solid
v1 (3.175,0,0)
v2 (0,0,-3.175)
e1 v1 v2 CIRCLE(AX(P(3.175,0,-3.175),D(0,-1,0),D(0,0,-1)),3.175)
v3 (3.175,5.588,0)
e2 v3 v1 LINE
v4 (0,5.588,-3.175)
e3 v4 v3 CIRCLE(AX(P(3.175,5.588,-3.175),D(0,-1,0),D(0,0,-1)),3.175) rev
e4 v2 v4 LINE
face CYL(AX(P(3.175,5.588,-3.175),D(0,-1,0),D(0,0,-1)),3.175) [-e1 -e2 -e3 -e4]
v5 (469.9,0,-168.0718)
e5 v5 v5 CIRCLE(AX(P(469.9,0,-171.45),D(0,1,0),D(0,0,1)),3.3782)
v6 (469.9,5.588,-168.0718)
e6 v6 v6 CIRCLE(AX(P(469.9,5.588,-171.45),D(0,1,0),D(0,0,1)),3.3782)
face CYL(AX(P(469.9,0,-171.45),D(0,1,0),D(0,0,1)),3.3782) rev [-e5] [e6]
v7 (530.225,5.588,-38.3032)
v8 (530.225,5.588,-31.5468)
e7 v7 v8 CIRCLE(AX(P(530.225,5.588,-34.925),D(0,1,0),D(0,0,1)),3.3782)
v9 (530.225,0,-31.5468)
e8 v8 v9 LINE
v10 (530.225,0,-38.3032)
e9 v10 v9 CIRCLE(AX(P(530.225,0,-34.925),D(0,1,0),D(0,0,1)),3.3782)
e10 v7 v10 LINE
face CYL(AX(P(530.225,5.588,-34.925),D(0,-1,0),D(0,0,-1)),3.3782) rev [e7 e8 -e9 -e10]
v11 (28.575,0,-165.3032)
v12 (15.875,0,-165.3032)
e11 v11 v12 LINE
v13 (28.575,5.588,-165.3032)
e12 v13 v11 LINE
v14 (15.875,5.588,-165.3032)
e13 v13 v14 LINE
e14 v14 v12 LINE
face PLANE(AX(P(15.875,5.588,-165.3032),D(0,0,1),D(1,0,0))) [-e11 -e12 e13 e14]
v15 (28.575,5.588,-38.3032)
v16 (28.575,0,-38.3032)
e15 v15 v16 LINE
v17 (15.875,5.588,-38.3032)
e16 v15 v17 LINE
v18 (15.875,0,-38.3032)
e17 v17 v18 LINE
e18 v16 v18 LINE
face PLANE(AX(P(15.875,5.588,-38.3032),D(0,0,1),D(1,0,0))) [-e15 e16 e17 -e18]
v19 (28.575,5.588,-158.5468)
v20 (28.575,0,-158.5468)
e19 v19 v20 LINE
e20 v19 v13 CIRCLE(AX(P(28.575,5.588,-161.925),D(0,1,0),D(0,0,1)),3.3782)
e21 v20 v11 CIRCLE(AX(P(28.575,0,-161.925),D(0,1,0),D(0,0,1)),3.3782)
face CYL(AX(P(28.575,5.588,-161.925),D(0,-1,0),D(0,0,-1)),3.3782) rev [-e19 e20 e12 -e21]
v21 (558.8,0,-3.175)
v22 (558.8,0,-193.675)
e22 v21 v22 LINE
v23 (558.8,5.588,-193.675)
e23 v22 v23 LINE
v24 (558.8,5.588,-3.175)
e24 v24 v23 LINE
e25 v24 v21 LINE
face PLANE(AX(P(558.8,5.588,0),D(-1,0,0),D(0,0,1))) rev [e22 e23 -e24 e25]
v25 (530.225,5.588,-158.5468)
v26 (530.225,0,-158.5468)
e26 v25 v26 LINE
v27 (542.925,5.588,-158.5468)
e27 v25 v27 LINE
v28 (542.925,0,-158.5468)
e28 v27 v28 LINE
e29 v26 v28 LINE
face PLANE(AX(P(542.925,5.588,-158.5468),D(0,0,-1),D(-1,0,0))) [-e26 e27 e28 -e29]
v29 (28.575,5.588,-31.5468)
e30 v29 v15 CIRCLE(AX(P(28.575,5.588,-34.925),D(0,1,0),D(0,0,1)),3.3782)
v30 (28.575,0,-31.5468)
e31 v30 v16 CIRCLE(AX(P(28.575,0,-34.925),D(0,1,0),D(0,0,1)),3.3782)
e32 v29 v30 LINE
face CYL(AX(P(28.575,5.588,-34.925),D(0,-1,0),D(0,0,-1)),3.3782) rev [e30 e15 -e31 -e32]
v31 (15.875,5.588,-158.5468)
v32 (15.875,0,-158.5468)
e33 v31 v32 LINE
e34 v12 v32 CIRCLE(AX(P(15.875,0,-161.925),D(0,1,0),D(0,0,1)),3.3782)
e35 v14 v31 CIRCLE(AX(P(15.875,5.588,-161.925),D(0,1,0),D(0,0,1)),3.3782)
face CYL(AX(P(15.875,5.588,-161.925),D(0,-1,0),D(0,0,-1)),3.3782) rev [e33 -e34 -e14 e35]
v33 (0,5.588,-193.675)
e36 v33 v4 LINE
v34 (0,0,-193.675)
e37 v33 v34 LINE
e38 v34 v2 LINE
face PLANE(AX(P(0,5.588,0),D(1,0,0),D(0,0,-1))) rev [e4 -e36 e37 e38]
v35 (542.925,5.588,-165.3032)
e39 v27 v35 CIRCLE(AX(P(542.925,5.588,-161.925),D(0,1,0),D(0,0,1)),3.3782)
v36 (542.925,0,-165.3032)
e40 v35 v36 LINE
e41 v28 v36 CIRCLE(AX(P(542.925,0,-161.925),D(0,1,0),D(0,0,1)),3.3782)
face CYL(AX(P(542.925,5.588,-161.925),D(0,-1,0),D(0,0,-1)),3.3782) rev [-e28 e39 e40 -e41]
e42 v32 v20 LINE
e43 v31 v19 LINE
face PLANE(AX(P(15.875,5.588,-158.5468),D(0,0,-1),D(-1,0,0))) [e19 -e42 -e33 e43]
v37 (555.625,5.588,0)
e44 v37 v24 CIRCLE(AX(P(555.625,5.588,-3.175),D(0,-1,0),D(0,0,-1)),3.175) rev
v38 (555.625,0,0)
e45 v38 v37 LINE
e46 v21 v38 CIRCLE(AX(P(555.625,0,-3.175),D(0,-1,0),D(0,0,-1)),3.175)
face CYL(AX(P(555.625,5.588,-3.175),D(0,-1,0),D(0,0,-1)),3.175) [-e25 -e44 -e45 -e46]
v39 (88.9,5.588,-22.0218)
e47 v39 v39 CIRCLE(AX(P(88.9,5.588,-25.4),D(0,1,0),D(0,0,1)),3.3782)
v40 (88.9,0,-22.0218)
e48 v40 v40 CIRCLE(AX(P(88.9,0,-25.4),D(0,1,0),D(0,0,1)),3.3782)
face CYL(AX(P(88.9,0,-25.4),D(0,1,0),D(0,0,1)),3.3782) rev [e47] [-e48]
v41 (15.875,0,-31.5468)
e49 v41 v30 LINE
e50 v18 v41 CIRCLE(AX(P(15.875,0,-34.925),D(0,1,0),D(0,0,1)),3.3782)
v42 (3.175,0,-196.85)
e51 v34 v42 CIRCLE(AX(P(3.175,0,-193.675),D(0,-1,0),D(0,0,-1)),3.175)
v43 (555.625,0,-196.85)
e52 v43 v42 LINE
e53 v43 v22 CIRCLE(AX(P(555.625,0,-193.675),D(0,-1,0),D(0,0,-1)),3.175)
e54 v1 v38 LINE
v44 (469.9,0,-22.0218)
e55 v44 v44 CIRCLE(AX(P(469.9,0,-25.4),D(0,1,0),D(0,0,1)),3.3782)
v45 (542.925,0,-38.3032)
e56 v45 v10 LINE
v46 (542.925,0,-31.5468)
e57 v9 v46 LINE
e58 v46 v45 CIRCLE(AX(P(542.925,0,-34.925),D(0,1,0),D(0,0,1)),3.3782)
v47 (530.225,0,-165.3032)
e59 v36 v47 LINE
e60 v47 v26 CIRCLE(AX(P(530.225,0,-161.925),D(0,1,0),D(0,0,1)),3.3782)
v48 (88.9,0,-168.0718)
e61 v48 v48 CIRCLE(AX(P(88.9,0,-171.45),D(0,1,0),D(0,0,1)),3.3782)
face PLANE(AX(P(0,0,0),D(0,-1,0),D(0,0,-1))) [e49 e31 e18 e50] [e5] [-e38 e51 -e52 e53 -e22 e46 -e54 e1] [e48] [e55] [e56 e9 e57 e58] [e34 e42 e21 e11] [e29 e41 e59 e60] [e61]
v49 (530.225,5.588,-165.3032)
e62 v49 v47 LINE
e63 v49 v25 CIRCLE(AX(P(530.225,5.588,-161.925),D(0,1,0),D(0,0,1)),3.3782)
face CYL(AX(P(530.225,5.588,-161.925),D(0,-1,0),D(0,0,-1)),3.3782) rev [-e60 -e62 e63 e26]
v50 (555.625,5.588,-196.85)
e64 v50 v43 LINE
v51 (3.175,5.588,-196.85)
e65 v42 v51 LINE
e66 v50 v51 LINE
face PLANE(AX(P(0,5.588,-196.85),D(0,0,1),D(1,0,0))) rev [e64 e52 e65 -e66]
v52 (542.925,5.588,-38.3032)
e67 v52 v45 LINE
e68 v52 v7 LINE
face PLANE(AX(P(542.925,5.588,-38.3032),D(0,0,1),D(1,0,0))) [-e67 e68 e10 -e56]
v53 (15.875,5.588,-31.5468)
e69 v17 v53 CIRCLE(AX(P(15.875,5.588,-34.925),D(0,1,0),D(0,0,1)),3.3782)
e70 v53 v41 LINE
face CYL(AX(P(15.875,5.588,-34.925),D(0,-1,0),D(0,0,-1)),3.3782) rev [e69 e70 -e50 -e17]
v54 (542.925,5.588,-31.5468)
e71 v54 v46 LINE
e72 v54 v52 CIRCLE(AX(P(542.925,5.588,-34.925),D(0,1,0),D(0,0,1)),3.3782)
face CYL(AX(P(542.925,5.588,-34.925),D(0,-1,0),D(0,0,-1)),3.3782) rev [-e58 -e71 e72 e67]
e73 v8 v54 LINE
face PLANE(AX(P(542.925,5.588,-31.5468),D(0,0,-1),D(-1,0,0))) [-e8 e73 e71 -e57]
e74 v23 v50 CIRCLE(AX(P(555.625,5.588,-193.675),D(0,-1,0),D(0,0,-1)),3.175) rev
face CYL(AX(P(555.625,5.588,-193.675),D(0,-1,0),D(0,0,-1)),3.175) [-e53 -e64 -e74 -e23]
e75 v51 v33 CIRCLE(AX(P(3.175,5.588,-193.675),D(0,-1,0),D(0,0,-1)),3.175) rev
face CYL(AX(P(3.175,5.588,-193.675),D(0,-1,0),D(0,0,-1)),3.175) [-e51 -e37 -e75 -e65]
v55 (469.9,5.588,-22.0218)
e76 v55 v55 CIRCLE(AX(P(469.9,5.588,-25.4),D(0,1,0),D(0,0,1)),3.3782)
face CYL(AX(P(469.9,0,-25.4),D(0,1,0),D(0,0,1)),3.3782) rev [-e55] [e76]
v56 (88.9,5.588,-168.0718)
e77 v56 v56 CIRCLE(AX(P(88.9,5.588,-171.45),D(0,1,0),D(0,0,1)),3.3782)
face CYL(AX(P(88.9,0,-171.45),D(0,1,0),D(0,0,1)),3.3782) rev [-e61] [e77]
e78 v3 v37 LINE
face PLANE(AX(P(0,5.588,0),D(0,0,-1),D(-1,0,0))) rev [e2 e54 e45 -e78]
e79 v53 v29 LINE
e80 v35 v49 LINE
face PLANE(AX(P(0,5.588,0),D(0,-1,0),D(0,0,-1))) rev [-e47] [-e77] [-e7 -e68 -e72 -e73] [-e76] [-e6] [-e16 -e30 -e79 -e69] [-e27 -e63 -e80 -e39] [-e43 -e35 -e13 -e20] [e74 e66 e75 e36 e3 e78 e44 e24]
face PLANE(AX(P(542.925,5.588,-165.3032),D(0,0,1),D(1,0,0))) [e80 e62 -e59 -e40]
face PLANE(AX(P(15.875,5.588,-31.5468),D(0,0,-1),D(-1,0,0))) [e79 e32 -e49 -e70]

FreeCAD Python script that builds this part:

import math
import FreeCAD as App
import Part
import Sketcher
Q = App.Units.Quantity


def edges_at(feature, points):
    """Names of the edges that pass closest to the given points."""
    edges = feature.Shape.Edges
    near = lambda p: min(range(len(edges)), key=lambda i: edges[i].distToShape(Part.Vertex(*p))[0])
    return sorted({f"Edge{near(p) + 1}" for p in points})


def add_polygon(sketch, points):
    """Adds a closed chain of lines whose ends are joined by coincident constraints."""
    first, n = sketch.GeometryCount, len(points)
    for a, b in zip(points, points[1:] + points[:1]):
        sketch.addGeometry(Part.LineSegment(App.Vector(*a, 0), App.Vector(*b, 0)), False)
    for i in range(n):
        sketch.addConstraint(Sketcher.Constraint("Coincident", first + i, 2, first + (i + 1) % n, 1))

doc = App.newDocument("Part")
body = doc.addObject("PartDesign::Body", "Body")

sketch1 = doc.addObject("Sketcher::SketchObject", "Sketch")
body.addObject(sketch1)
sketch1.AttachmentSupport = (doc.XZ_Plane, [""])
sketch1.MapMode = "FlatFace"
add_polygon(sketch1, [(0, -196.8), (0, 0), (558.8, 0), (558.8, -196.8)])
sketch1.addGeometry(Part.ArcOfCircle(Part.Circle(App.Vector(15.9, -34.9, 0), App.Vector(0, 0, 1), 3.4), math.radians(90), math.radians(270)), False)
sketch1.addGeometry(Part.LineSegment(App.Vector(15.9, -38.3, 0), App.Vector(28.6, -38.3, 0)), False)
sketch1.addGeometry(Part.ArcOfCircle(Part.Circle(App.Vector(28.6, -34.9, 0), App.Vector(0, 0, 1), 3.4), math.radians(-90), math.radians(90)), False)
sketch1.addGeometry(Part.LineSegment(App.Vector(28.6, -31.5, 0), App.Vector(15.9, -31.5, 0)), False)
sketch1.addGeometry(Part.ArcOfCircle(Part.Circle(App.Vector(542.9, -34.9, 0), App.Vector(0, 0, 1), 3.4), math.radians(-90), math.radians(90)), False)
sketch1.addGeometry(Part.LineSegment(App.Vector(542.9, -31.5, 0), App.Vector(530.2, -31.5, 0)), False)
sketch1.addGeometry(Part.ArcOfCircle(Part.Circle(App.Vector(530.2, -34.9, 0), App.Vector(0, 0, 1), 3.4), math.radians(90), math.radians(270)), False)
sketch1.addGeometry(Part.LineSegment(App.Vector(530.2, -38.3, 0), App.Vector(542.9, -38.3, 0)), False)
sketch1.addGeometry(Part.ArcOfCircle(Part.Circle(App.Vector(15.9, -161.9, 0), App.Vector(0, 0, 1), 3.4), math.radians(90), math.radians(270)), False)
sketch1.addGeometry(Part.LineSegment(App.Vector(15.9, -165.3, 0), App.Vector(28.6, -165.3, 0)), False)
sketch1.addGeometry(Part.ArcOfCircle(Part.Circle(App.Vector(28.6, -161.9, 0), App.Vector(0, 0, 1), 3.4), math.radians(-90), math.radians(90)), False)
sketch1.addGeometry(Part.LineSegment(App.Vector(28.6, -158.5, 0), App.Vector(15.9, -158.5, 0)), False)
sketch1.addGeometry(Part.ArcOfCircle(Part.Circle(App.Vector(542.9, -161.9, 0), App.Vector(0, 0, 1), 3.4), math.radians(-90), math.radians(90)), False)
sketch1.addGeometry(Part.LineSegment(App.Vector(542.9, -158.5, 0), App.Vector(530.2, -158.5, 0)), False)
sketch1.addGeometry(Part.ArcOfCircle(Part.Circle(App.Vector(530.2, -161.9, 0), App.Vector(0, 0, 1), 3.4), math.radians(90), math.radians(270)), False)
sketch1.addGeometry(Part.LineSegment(App.Vector(530.2, -165.3, 0), App.Vector(542.9, -165.3, 0)), False)
sketch1.addConstraint(Sketcher.Constraint("Tangent", 4, 2, 5, 1))
sketch1.addConstraint(Sketcher.Constraint("Tangent", 5, 2, 6, 1))
sketch1.addConstraint(Sketcher.Constraint("Tangent", 6, 2, 7, 1))
sketch1.addConstraint(Sketcher.Constraint("Tangent", 7, 2, 4, 1))
sketch1.addConstraint(Sketcher.Constraint("Tangent", 8, 2, 9, 1))
sketch1.addConstraint(Sketcher.Constraint("Tangent", 9, 2, 10, 1))
sketch1.addConstraint(Sketcher.Constraint("Tangent", 10, 2, 11, 1))
sketch1.addConstraint(Sketcher.Constraint("Tangent", 11, 2, 8, 1))
sketch1.addConstraint(Sketcher.Constraint("Tangent", 12, 2, 13, 1))
sketch1.addConstraint(Sketcher.Constraint("Tangent", 13, 2, 14, 1))
sketch1.addConstraint(Sketcher.Constraint("Tangent", 14, 2, 15, 1))
sketch1.addConstraint(Sketcher.Constraint("Tangent", 15, 2, 12, 1))
sketch1.addConstraint(Sketcher.Constraint("Tangent", 16, 2, 17, 1))
sketch1.addConstraint(Sketcher.Constraint("Tangent", 17, 2, 18, 1))
sketch1.addConstraint(Sketcher.Constraint("Tangent", 18, 2, 19, 1))
sketch1.addConstraint(Sketcher.Constraint("Tangent", 19, 2, 16, 1))
sketch1.addConstraint(Sketcher.Constraint("Vertical", 0))
sketch1.addConstraint(Sketcher.Constraint("Horizontal", 1))
sketch1.addConstraint(Sketcher.Constraint("Vertical", 2))
sketch1.addConstraint(Sketcher.Constraint("Horizontal", 3))
sketch1.addConstraint(Sketcher.Constraint("Horizontal", 5))
sketch1.addConstraint(Sketcher.Constraint("Horizontal", 7))
sketch1.addConstraint(Sketcher.Constraint("Horizontal", 9))
sketch1.addConstraint(Sketcher.Constraint("Horizontal", 11))
sketch1.addConstraint(Sketcher.Constraint("Horizontal", 13))
sketch1.addConstraint(Sketcher.Constraint("Horizontal", 15))
sketch1.addConstraint(Sketcher.Constraint("Horizontal", 17))
sketch1.addConstraint(Sketcher.Constraint("Horizontal", 19))
sketch1.addConstraint(Sketcher.Constraint("Coincident", 0, 2, -1, 1))
sketch1.addConstraint(Sketcher.Constraint("Equal", 6, 8))
sketch1.addConstraint(Sketcher.Constraint("Equal", 10, 12))
sketch1.addConstraint(Sketcher.Constraint("Equal", 14, 16))
sketch1.addConstraint(Sketcher.Constraint("Horizontal", 6, 3, 8, 3))
sketch1.addConstraint(Sketcher.Constraint("Horizontal", 14, 3, 16, 3))
sketch1.addConstraint(Sketcher.Constraint("Vertical", 4, 3, 12, 3))
sketch1.addConstraint(Sketcher.Constraint("Vertical", 6, 3, 14, 3))
sketch1.addConstraint(Sketcher.Constraint("Vertical", 8, 3, 16, 3))
sketch1.addConstraint(Sketcher.Constraint("Vertical", 10, 3, 18, 3))
sketch1.addConstraint(Sketcher.Constraint("Equal", 7, 9))
sketch1.addConstraint(Sketcher.Constraint("DistanceX", 1, 1, 1, 2, Q("22 in")))
sketch1.addConstraint(Sketcher.Constraint("DistanceX", 5, 1, 5, 2, Q("0.5 in")))
sketch1.addConstraint(Sketcher.Constraint("Radius", 4, Q("0.133 in")))
sketch1.addConstraint(Sketcher.Constraint("DistanceY", 12, 3, 4, 3, Q("5 in")))
sketch1.addConstraint(Sketcher.Constraint("DistanceY", 0, 1, 0, 2, Q("7.75 in")))
sketch1.addConstraint(Sketcher.Constraint("DistanceX", 6, 3, 8, 3, Q("20.25 in")))
sketch1.addConstraint(Sketcher.Constraint("DistanceX", -1, 1, 4, 3, Q("0.625 in")))
sketch1.addConstraint(Sketcher.Constraint("DistanceY", 4, 3, -1, 1, Q("1.375 in")))
pad1 = doc.addObject("PartDesign::Pad", "Pad")
body.addObject(pad1)
pad1.Profile = sketch1
pad1.Length = Q("0.22 in")
pad1.Reversed = True
doc.recompute()

fillet = doc.addObject("PartDesign::Fillet", "Fillet")
body.addObject(fillet)
fillet.Base = (pad1, edges_at(pad1, [
    (0, 2.794, -196.85),
    (558.8, 2.794, -196.85),
    (558.8, 2.794, 0),
    (0, 2.794, 0),
]))
fillet.Radius = Q("0.125 in")

sketch2 = doc.addObject("Sketcher::SketchObject", "Sketch001")
body.addObject(sketch2)
sketch2.AttachmentSupport = (doc.XZ_Plane, [""])
sketch2.MapMode = "FlatFace"
sketch2.AttachmentOffset = App.Placement(App.Vector(0, 0, -0.22 * 25.4), App.Rotation())
sketch2.addGeometry(Part.Circle(App.Vector(88.9, -171.4, 0), App.Vector(0, 0, 1), 3.4), False)
sketch2.addGeometry(Part.Circle(App.Vector(88.9, -25.4, 0), App.Vector(0, 0, 1), 3.4), False)
sketch2.addGeometry(Part.Circle(App.Vector(469.9, -25.4, 0), App.Vector(0, 0, 1), 3.4), False)
sketch2.addGeometry(Part.Circle(App.Vector(469.9, -171.4, 0), App.Vector(0, 0, 1), 3.4), False)
sketch2.addConstraint(Sketcher.Constraint("Equal", 0, 1))
sketch2.addConstraint(Sketcher.Constraint("Equal", 1, 2))
sketch2.addConstraint(Sketcher.Constraint("Equal", 2, 3))
sketch2.addConstraint(Sketcher.Constraint("Horizontal", 1, 3, 2, 3))
sketch2.addConstraint(Sketcher.Constraint("Horizontal", 0, 3, 3, 3))
sketch2.addConstraint(Sketcher.Constraint("Vertical", 0, 3, 1, 3))
sketch2.addConstraint(Sketcher.Constraint("Vertical", 2, 3, 3, 3))
sketch2.addConstraint(Sketcher.Constraint("Diameter", 0, Q("0.266 in")))
sketch2.addConstraint(Sketcher.Constraint("DistanceY", 1, 3, -1, 1, Q("1 in")))
sketch2.addConstraint(Sketcher.Constraint("DistanceX", 1, 3, 2, 3, Q("15 in")))
sketch2.addConstraint(Sketcher.Constraint("DistanceX", -1, 1, 0, 3, Q("3.5 in")))
sketch2.addConstraint(Sketcher.Constraint("DistanceY", 0, 3, -1, 1, Q("6.75 in")))
pocket1 = doc.addObject("PartDesign::Pocket", "Pocket")
body.addObject(pocket1)
pocket1.Profile = sketch2
pocket1.Type = "ThroughAll"
pocket1.Reversed = True

doc.recompute()
